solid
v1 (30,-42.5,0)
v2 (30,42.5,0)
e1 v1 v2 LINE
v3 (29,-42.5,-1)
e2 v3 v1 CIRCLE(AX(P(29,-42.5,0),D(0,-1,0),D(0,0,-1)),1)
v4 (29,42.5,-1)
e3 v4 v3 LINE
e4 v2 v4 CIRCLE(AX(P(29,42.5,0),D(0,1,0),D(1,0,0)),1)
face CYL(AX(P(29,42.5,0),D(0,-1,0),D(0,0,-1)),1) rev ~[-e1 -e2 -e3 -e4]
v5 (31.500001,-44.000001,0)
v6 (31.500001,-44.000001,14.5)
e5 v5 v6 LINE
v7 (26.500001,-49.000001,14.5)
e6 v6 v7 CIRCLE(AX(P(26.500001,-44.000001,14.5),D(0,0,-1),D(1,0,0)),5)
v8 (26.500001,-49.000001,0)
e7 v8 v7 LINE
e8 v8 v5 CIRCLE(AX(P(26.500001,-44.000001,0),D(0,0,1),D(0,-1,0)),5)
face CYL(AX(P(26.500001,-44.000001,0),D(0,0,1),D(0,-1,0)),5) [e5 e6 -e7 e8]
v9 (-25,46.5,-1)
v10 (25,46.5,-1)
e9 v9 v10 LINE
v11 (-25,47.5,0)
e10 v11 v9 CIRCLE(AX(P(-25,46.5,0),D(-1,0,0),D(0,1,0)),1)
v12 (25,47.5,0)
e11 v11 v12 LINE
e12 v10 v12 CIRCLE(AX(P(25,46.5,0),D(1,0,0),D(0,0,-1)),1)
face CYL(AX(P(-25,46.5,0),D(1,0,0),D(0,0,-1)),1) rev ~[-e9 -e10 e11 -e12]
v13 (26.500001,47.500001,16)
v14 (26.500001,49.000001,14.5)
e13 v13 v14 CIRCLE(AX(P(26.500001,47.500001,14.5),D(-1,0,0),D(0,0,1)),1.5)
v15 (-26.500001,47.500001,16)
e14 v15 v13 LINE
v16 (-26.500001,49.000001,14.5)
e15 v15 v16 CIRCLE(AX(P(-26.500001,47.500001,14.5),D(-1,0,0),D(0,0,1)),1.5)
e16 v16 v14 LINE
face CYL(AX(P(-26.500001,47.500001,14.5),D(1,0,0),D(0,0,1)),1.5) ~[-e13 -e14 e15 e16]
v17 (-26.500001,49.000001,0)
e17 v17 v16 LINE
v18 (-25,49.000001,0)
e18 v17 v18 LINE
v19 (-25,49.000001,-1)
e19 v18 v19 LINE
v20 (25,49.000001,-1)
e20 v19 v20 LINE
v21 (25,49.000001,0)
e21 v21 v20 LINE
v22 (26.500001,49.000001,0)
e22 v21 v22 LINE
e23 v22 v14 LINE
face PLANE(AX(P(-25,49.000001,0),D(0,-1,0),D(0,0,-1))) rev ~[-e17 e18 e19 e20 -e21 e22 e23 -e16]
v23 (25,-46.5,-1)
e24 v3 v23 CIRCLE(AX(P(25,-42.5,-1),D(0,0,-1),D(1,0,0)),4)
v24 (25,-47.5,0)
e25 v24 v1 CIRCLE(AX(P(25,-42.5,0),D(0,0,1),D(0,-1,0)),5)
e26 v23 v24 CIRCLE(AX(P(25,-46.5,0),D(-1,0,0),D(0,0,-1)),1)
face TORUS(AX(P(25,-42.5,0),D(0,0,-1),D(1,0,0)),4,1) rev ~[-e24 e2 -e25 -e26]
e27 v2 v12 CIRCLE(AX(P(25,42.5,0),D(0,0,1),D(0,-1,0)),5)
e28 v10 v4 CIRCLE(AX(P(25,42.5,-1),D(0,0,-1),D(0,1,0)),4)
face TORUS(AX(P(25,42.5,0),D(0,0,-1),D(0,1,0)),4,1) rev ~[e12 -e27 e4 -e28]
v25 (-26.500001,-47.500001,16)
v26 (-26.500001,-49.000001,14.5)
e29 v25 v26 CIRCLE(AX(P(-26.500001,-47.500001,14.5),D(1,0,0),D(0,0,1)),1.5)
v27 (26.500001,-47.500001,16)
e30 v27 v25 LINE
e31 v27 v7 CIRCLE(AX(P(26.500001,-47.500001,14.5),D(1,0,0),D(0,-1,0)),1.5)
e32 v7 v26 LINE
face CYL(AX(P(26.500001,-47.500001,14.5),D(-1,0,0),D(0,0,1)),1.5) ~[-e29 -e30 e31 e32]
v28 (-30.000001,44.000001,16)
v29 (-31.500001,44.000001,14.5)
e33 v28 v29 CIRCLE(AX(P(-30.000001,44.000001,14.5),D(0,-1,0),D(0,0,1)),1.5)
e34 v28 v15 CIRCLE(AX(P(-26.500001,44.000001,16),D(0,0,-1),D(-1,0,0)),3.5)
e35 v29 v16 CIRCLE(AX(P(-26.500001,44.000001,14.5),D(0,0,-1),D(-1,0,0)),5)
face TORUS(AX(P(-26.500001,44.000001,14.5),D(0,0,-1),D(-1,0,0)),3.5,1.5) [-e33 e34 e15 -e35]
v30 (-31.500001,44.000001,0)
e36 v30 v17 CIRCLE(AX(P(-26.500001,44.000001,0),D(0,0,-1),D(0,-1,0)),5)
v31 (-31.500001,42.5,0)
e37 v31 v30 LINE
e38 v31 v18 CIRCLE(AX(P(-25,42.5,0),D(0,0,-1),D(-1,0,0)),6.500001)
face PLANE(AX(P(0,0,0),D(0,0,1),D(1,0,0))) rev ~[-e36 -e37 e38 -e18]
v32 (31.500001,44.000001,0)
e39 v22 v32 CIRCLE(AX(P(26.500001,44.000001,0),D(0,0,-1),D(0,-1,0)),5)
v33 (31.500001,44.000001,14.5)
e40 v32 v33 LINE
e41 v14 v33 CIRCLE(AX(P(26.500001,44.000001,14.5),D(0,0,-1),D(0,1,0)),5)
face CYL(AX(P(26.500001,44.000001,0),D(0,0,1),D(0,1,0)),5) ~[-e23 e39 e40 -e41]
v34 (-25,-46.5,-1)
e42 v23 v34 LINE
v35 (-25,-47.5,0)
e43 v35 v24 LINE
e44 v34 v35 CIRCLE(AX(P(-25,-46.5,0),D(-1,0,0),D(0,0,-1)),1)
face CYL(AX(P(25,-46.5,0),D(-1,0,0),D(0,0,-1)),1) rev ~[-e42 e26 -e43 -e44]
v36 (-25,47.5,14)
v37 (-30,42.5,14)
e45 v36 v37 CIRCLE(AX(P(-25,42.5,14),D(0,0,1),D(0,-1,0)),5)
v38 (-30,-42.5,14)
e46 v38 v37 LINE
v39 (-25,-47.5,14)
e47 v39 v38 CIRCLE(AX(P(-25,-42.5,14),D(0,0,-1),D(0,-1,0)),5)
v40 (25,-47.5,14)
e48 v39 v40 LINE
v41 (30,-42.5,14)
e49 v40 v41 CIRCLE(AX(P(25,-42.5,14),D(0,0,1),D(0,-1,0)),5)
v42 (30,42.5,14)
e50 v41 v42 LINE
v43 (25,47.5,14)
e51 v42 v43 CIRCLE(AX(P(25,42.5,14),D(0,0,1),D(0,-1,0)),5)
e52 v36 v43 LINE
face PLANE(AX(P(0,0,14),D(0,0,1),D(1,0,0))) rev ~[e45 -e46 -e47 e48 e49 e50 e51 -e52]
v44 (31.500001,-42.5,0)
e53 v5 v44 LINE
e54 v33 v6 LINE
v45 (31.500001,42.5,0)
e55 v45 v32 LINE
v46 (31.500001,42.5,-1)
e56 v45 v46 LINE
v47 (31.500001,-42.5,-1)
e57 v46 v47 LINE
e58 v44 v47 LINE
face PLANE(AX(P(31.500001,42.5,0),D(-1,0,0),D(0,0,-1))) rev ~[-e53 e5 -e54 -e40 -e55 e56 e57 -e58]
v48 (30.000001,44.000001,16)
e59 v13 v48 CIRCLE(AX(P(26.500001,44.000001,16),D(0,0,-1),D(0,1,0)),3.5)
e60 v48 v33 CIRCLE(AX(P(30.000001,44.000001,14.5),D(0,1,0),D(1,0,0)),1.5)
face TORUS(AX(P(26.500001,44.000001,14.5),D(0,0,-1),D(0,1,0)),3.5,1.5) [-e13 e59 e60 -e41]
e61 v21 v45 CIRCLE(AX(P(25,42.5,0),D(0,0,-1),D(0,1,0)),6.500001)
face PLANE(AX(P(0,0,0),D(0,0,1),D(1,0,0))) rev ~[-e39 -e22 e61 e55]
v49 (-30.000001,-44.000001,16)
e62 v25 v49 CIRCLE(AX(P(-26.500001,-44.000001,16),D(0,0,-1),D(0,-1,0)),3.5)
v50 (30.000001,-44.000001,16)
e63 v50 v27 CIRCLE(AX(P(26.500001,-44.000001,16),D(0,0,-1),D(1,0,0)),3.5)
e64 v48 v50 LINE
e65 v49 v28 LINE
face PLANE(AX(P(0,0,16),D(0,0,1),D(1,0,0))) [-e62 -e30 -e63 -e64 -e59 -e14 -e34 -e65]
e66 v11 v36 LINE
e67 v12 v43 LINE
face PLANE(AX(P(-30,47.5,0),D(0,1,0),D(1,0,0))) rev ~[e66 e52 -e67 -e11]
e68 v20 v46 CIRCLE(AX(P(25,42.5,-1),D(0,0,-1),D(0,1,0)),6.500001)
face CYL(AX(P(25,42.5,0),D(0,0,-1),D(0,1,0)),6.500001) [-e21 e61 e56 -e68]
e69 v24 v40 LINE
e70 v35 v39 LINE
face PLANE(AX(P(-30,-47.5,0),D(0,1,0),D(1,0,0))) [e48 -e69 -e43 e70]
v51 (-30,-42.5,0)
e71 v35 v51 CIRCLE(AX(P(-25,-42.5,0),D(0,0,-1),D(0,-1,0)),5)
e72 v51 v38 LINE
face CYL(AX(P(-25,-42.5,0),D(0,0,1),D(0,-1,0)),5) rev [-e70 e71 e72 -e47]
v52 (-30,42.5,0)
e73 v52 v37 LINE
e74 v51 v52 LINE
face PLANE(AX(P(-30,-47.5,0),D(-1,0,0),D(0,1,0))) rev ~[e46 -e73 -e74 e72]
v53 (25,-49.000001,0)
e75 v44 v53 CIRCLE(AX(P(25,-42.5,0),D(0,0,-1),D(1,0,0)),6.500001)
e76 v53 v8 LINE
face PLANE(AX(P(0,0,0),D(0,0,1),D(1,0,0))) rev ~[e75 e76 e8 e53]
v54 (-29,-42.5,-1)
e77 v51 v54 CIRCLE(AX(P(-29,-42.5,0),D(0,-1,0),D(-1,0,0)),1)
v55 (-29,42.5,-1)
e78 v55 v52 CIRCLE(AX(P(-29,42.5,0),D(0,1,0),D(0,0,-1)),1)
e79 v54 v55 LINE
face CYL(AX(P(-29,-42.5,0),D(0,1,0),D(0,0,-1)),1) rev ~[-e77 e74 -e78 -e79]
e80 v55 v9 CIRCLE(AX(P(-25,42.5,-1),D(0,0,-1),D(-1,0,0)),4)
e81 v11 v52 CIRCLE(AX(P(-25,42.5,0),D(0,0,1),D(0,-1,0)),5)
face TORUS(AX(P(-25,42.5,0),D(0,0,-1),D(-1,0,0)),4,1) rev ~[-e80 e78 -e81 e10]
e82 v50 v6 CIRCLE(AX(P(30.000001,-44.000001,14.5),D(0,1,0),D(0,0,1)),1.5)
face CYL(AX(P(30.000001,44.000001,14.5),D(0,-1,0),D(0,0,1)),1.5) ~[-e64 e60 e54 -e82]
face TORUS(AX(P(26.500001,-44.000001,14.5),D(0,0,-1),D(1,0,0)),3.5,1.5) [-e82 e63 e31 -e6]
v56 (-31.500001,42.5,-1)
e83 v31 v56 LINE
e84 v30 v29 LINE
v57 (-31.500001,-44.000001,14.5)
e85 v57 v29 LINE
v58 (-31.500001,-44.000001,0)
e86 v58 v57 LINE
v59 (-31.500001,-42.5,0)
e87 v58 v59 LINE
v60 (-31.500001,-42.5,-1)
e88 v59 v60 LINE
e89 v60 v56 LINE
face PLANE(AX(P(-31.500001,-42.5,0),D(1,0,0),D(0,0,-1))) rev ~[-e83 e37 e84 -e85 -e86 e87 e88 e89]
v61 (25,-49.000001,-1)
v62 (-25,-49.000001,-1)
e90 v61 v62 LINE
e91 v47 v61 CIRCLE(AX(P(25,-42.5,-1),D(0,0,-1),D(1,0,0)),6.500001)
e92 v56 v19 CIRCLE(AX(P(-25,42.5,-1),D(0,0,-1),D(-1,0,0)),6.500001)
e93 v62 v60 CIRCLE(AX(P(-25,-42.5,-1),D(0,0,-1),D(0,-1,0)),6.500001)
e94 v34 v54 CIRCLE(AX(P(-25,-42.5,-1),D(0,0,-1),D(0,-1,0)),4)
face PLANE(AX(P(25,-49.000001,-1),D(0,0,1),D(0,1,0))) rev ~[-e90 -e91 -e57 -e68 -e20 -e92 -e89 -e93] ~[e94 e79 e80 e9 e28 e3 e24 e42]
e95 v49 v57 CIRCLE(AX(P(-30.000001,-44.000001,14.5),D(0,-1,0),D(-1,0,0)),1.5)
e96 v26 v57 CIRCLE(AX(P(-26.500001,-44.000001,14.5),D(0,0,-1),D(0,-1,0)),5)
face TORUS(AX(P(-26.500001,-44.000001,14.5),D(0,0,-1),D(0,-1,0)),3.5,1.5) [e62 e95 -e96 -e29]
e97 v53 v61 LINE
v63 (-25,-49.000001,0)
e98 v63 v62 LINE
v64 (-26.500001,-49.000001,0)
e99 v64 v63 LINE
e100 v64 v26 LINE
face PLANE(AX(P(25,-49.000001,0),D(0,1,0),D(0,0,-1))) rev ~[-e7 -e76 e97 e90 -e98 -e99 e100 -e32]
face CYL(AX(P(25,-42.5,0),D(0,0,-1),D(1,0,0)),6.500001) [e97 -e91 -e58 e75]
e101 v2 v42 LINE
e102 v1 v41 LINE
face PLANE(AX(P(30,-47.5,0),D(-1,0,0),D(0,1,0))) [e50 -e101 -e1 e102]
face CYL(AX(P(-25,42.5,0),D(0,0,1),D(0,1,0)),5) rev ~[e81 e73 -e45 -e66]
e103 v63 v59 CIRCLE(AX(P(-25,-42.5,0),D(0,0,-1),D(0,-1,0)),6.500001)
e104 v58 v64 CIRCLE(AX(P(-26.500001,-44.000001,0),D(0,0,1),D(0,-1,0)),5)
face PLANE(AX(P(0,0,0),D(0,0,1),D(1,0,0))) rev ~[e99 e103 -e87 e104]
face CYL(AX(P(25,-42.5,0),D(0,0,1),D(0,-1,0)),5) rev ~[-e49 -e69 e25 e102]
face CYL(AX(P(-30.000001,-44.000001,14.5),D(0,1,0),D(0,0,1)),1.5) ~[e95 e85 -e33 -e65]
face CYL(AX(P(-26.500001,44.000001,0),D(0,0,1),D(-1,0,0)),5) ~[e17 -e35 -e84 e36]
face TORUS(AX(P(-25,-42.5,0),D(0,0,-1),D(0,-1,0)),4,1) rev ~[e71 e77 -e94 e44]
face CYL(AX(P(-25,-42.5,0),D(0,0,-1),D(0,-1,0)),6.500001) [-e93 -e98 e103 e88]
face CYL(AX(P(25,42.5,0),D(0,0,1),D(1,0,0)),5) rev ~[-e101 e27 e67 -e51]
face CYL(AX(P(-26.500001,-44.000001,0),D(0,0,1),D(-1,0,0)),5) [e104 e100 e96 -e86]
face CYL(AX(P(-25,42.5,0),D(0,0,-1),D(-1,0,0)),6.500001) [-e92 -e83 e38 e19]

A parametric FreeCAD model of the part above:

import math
import FreeCAD as App
import Part
import Sketcher
from FreeCAD import Vector
Q = App.Units.Quantity


def edges_at(feature, points):
    """Names of the edges that pass closest to the given points."""
    edges = feature.Shape.Edges
    near = lambda p: min(range(len(edges)), key=lambda i: edges[i].distToShape(Part.Vertex(*p))[0])
    return sorted({f"Edge{near(p) + 1}" for p in points})


def add_polygon(sketch, points):
    """Adds a closed chain of lines whose ends are joined by coincident constraints."""
    first, n = sketch.GeometryCount, len(points)
    for a, b in zip(points, points[1:] + points[:1]):
        sketch.addGeometry(Part.LineSegment(App.Vector(*a, 0), App.Vector(*b, 0)), False)
    for i in range(n):
        sketch.addConstraint(Sketcher.Constraint("Coincident", first + i, 2, first + (i + 1) % n, 1))

doc = App.newDocument("Part")
body = doc.addObject("PartDesign::Body", "Body")

# Sketch on XY plane
sketch1 = body.newObject("Sketcher::SketchObject", "Sketch")
sketch1.AttachmentSupport = (doc.getObject("XY_Plane"), [""])
sketch1.MapMode = "FlatFace"
add_polygon(sketch1, [(-32, 49), (-32, -49), (32, -49), (32, 49)])  # lines 0-3
sketch1.addConstraint(Sketcher.Constraint("Vertical", 0))
sketch1.addConstraint(Sketcher.Constraint("Horizontal", 1))
sketch1.addConstraint(Sketcher.Constraint("Vertical", 2))
sketch1.addConstraint(Sketcher.Constraint("Horizontal", 3))
sketch1.addConstraint(Sketcher.Constraint("Symmetric", 0, 2, 2, 2, -1, 1))
sketch1.addConstraint(Sketcher.Constraint("DistanceX", 1, 1, 1, 2, Q("63.000001 mm")))
sketch1.addConstraint(Sketcher.Constraint("DistanceY", 0, 2, 0, 1, Q("98.000001 mm")))
pad1 = body.newObject("PartDesign::Pad", "Pad")
pad1.Profile = sketch1
pad1.Length = 16

# Sketch on XY plane
sketch2 = body.newObject("Sketcher::SketchObject", "Sketch001")
sketch2.AttachmentSupport = (doc.getObject("XY_Plane"), [""])
sketch2.MapMode = "FlatFace"
add_polygon(sketch2, [(-30, 48), (-30, -48), (30, -48), (30, 48)])  # lines 0-3
sketch2.addConstraint(Sketcher.Constraint("Vertical", 0))
sketch2.addConstraint(Sketcher.Constraint("Horizontal", 1))
sketch2.addConstraint(Sketcher.Constraint("Vertical", 2))
sketch2.addConstraint(Sketcher.Constraint("Horizontal", 3))
sketch2.addConstraint(Sketcher.Constraint("Symmetric", 0, 2, 2, 2, -1, 1))
sketch2.addConstraint(Sketcher.Constraint("DistanceX", 1, 1, 1, 2, Q("60 mm")))
sketch2.addConstraint(Sketcher.Constraint("DistanceY", 0, 2, 0, 1, Q("95 mm")))
pocket1 = body.newObject("PartDesign::Pocket", "Pocket")
pocket1.Profile = sketch2
pocket1.Length = 14
pocket1.Reversed = True
doc.recompute()

fillet = body.newObject("PartDesign::Fillet", "Fillet")
fillet.Base = (pocket1, edges_at(pocket1, [
    (-30, 47.5, 7),
    (30, 47.5, 7),
    (31.5, 49, 8),
    (-31.5, 49, 8),
    (-31.5, -49, 8),
    (-30, -47.5, 7),
    (30, -47.5, 7),
    (31.5, -49, 8),
]))
fillet.Radius = 5
doc.recompute()

fillet2 = body.newObject("PartDesign::Fillet", "Fillet001")
fillet2.Base = (fillet, edges_at(fillet, [
    (0, 49, 16),
    (30.036, 47.536, 16),
    (-30.036, 47.536, 16),
    (31.5, 0, 16),
    (-31.5, 0, 16),
    (30.036, -47.536, 16),
    (-30.036, -47.536, 16),
    (0, -49, 16),
]))
fillet2.Radius = 1.5

# Sketch on XZ plane
sketch3 = body.newObject("Sketcher::SketchObject", "Sketch002")
sketch3.AttachmentSupport = (doc.getObject("XZ_Plane"), [""])
sketch3.MapMode = "FlatFace"
sketch3.addGeometry(Part.ArcOfCircle(Part.Circle(Vector(-29, 0, 0), Vector(0, 0, 1), 1), math.radians(180), math.radians(270)), False)
sketch3.addGeometry(Part.LineSegment(Vector(-30, 0, 0), Vector(-31.5, 0, 0)), False)
sketch3.addGeometry(Part.LineSegment(Vector(-31.5, 0, 0), Vector(-31.5, -1, 0)), False)
sketch3.addGeometry(Part.LineSegment(Vector(-31.5, -1, 0), Vector(-29, -1, 0)), False)
sketch3.addConstraint(Sketcher.Constraint("Coincident", 0, 1, 1, 1))
sketch3.addConstraint(Sketcher.Constraint("Coincident", 1, 2, 2, 1))
sketch3.addConstraint(Sketcher.Constraint("Coincident", 2, 2, 3, 1))
sketch3.addConstraint(Sketcher.Constraint("Tangent", 3, 2, 0, 2))
sketch3.addConstraint(Sketcher.Constraint("Horizontal", 1))
sketch3.addConstraint(Sketcher.Constraint("Vertical", 2))
sketch3.addConstraint(Sketcher.Constraint("Horizontal", 3))
sketch3.addConstraint(Sketcher.Constraint("PointOnObject", 0, 3, -1))
sketch3.addConstraint(Sketcher.Constraint("PointOnObject", 0, 1, -1))
sketch3.addConstraint(Sketcher.Constraint("Radius", 0, Q("1 mm")))
sketch3.addConstraint(Sketcher.Constraint("DistanceX", 1, 2, 1, 1, Q("1.500001 mm")))
sketch3.addConstraint(Sketcher.Constraint("DistanceX", 0, 3, -1, 1, Q("29 mm")))

# Sketch on XY plane
sketch4 = body.newObject("Sketcher::SketchObject", "Sketch003")
sketch4.AttachmentSupport = (doc.getObject("XY_Plane"), [""])
sketch4.MapMode = "FlatFace"
sketch4.addGeometry(Part.LineSegment(Vector(25, -48, 0), Vector(-25, -48, 0)), False)
sketch4.addGeometry(Part.ArcOfCircle(Part.Circle(Vector(-25, -42, 0), Vector(0, 0, 1), 5), math.radians(180), math.radians(270)), False)
sketch4.addGeometry(Part.LineSegment(Vector(-30, -42, 0), Vector(-30, 42, 0)), False)
sketch4.addGeometry(Part.ArcOfCircle(Part.Circle(Vector(-25, 42, 0), Vector(0, 0, 1), 5), math.radians(90), math.radians(180)), False)
sketch4.addGeometry(Part.LineSegment(Vector(-25, 48, 0), Vector(25, 48, 0)), False)
sketch4.addGeometry(Part.ArcOfCircle(Part.Circle(Vector(25, 42, 0), Vector(0, 0, 1), 5), math.radians(0), math.radians(90)), False)
sketch4.addGeometry(Part.LineSegment(Vector(30, 42, 0), Vector(30, -42, 0)), False)
sketch4.addGeometry(Part.ArcOfCircle(Part.Circle(Vector(25, -42, 0), Vector(0, 0, 1), 5), math.radians(-90), math.radians(0)), False)
sketch4.addConstraint(Sketcher.Constraint("Tangent", 0, 2, 1, 2))
sketch4.addConstraint(Sketcher.Constraint("Tangent", 1, 1, 2, 1))
sketch4.addConstraint(Sketcher.Constraint("Tangent", 2, 2, 3, 2))
sketch4.addConstraint(Sketcher.Constraint("Tangent", 3, 1, 4, 1))
sketch4.addConstraint(Sketcher.Constraint("Tangent", 4, 2, 5, 2))
sketch4.addConstraint(Sketcher.Constraint("Tangent", 5, 1, 6, 1))
sketch4.addConstraint(Sketcher.Constraint("Tangent", 6, 2, 7, 2))
sketch4.addConstraint(Sketcher.Constraint("Tangent", 7, 1, 0, 1))
sketch4.addConstraint(Sketcher.Constraint("Horizontal", 0))
sketch4.addConstraint(Sketcher.Constraint("Vertical", 2))
sketch4.addConstraint(Sketcher.Constraint("Horizontal", 4))
sketch4.addConstraint(Sketcher.Constraint("Vertical", 6))
sketch4.addConstraint(Sketcher.Constraint("Equal", 1, 3))
sketch4.addConstraint(Sketcher.Constraint("Equal", 3, 5))
sketch4.addConstraint(Sketcher.Constraint("Equal", 5, 7))
sketch4.addConstraint(Sketcher.Constraint("Symmetric", 1, 3, 5, 3, -1, 1))
sketch4.addConstraint(Sketcher.Constraint("Radius", 1, Q("5 mm")))
sketch4.addConstraint(Sketcher.Constraint("DistanceX", 0, 2, 0, 1, Q("50 mm")))
sketch4.addConstraint(Sketcher.Constraint("DistanceY", 2, 1, 2, 2, Q("85 mm")))
doc.recompute()

additivepipe = body.newObject("PartDesign::AdditivePipe", "AdditivePipe")
additivepipe.Profile = sketch3
additivepipe.Spine = (sketch4, ["Edge1", "Edge2", "Edge3", "Edge4", "Edge5", "Edge6", "Edge7", "Edge8"])

doc.recompute()
